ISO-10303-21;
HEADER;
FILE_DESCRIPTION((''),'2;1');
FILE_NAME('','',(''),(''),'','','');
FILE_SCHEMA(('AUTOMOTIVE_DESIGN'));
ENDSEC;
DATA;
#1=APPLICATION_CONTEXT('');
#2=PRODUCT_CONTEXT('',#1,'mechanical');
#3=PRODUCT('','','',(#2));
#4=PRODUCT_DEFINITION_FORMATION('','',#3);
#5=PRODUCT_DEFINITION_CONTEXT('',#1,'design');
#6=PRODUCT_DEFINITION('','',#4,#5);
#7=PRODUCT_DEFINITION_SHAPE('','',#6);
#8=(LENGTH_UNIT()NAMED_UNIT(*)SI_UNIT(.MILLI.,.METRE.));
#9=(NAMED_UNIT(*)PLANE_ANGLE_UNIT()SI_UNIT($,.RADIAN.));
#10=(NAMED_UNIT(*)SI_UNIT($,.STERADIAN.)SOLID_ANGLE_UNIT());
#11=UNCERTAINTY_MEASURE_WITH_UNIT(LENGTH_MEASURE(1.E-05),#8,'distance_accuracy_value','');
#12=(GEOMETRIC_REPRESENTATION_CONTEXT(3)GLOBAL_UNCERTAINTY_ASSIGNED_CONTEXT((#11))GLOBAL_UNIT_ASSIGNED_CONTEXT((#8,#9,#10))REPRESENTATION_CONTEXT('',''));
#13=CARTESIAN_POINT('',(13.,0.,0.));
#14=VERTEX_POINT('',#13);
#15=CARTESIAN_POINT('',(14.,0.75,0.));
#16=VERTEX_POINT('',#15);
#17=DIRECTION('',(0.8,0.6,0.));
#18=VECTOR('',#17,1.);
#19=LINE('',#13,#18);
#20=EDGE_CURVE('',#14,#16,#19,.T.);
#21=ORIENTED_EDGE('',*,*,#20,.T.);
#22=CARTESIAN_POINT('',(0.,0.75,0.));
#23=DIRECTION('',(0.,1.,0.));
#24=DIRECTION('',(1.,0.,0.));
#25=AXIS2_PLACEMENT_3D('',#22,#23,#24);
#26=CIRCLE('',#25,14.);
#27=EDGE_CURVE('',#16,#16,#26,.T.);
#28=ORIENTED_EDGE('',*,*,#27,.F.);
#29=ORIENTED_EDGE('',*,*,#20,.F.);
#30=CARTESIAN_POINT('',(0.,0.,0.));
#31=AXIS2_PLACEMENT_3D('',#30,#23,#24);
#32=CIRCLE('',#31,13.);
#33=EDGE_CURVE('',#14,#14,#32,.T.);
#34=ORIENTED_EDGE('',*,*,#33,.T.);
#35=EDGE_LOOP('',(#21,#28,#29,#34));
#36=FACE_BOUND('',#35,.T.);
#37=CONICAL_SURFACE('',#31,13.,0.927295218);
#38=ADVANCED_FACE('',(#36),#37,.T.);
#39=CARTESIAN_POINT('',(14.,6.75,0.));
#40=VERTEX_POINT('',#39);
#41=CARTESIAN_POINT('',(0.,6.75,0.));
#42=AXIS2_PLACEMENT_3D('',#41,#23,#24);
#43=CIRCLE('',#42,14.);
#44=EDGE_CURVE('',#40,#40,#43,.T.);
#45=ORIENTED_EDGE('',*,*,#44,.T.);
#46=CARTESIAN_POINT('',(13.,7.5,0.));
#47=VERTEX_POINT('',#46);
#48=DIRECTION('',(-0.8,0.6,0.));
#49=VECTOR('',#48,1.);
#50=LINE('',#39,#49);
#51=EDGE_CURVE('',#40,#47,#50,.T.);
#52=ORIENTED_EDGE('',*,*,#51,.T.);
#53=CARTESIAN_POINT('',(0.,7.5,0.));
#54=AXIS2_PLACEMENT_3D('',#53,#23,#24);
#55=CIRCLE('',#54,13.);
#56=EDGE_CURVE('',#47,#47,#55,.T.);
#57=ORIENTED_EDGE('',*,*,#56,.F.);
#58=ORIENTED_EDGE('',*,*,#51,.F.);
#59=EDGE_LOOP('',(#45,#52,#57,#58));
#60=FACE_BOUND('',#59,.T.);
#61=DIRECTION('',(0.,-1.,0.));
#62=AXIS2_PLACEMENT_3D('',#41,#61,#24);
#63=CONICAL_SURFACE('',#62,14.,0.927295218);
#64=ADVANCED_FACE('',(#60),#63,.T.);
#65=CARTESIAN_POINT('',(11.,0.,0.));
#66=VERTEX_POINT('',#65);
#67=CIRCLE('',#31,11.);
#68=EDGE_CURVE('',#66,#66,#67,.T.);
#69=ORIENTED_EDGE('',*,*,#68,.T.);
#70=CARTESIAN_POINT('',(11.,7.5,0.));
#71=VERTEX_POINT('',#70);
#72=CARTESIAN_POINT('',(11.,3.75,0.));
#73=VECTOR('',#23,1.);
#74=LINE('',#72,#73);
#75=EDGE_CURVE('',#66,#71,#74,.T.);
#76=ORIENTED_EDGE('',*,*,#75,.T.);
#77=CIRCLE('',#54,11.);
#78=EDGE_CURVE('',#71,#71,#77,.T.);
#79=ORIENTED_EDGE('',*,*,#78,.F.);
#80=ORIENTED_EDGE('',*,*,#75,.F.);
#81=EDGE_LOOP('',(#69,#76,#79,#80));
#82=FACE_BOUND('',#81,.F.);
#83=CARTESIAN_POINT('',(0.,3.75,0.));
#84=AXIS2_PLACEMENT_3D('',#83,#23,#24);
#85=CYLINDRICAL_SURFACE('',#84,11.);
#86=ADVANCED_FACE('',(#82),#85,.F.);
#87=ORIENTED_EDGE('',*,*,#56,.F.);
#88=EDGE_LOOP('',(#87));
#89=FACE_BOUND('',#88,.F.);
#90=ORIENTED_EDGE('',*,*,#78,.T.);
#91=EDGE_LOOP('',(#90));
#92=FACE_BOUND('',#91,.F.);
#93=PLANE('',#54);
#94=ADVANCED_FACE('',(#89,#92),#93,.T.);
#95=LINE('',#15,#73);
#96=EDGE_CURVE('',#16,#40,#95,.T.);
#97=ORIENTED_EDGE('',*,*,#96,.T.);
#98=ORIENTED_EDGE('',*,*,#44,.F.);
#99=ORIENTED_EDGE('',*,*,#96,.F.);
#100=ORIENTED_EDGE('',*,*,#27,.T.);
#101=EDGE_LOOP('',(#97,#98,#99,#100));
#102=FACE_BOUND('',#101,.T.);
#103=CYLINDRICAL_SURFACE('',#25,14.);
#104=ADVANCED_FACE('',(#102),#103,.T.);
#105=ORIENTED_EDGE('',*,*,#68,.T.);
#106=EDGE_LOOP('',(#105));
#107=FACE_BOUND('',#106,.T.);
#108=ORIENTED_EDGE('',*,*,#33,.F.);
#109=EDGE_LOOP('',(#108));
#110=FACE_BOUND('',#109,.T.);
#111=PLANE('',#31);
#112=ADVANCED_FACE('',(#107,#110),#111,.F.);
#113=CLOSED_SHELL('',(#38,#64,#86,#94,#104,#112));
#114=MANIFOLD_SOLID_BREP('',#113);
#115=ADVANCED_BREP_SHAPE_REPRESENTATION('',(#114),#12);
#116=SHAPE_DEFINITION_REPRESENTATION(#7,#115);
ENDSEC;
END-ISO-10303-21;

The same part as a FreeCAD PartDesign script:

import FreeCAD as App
import Part
import Sketcher

V = App.Vector

doc = App.newDocument("Part")
body = doc.addObject("PartDesign::Body", "Body")

sketch1 = doc.addObject("Sketcher::SketchObject", "Sketch")
body.addObject(sketch1)
sketch1.AttachmentSupport = (doc.XY_Plane, [""])
sketch1.MapMode = "FlatFace"
sketch1.addGeometry(Part.LineSegment(V(13, 0, 0), V(14, 0.8, 0)), False)
sketch1.addGeometry(Part.LineSegment(V(14, 0.8, 0), V(14, 6.8, 0)), False)
sketch1.addGeometry(Part.LineSegment(V(14, 6.8, 0), V(13, 7.5, 0)), False)
sketch1.addGeometry(Part.LineSegment(V(13, 7.5, 0), V(11, 7.5, 0)), False)
sketch1.addGeometry(Part.LineSegment(V(11, 7.5, 0), V(11, 0, 0)), False)
sketch1.addGeometry(Part.LineSegment(V(11, 0, 0), V(13, 0, 0)), False)
sketch1.addConstraint(Sketcher.Constraint("Coincident", 0, 2, 1, 1))
sketch1.addConstraint(Sketcher.Constraint("Coincident", 1, 2, 2, 1))
sketch1.addConstraint(Sketcher.Constraint("Coincident", 2, 2, 3, 1))
sketch1.addConstraint(Sketcher.Constraint("Coincident", 3, 2, 4, 1))
sketch1.addConstraint(Sketcher.Constraint("Coincident", 4, 2, 5, 1))
sketch1.addConstraint(Sketcher.Constraint("Coincident", 5, 2, 0, 1))
sketch1.addConstraint(Sketcher.Constraint("Vertical", 1))
sketch1.addConstraint(Sketcher.Constraint("Horizontal", 3))
sketch1.addConstraint(Sketcher.Constraint("Vertical", 4))
sketch1.addConstraint(Sketcher.Constraint("Horizontal", 5))
sketch1.addConstraint(Sketcher.Constraint("PointOnObject", 4, 2, -1))
sketch1.addConstraint(Sketcher.Constraint("Vertical", 2, 2, 5, 2))
sketch1.addConstraint(Sketcher.Constraint("Equal", 0, 2))
sketch1.addConstraint(Sketcher.Constraint("DistanceX", 3, 2, 3, 1, 2.0))
sketch1.addConstraint(Sketcher.Constraint("DistanceY", 1, 1, 1, 2, 6.0))
sketch1.addConstraint(Sketcher.Constraint("DistanceY", 4, 2, 4, 1, 7.5))
sketch1.addConstraint(Sketcher.Constraint("DistanceX", -1, 1, 0, 2, 14.0))
sketch1.addConstraint(Sketcher.Constraint("DistanceX", -1, 1, 2, 2, 13.0))
revolution = doc.addObject("PartDesign::Revolution", "Revolution")
body.addObject(revolution)
revolution.Profile = sketch1
revolution.ReferenceAxis = (sketch1, ["V_Axis"])
revolution.Angle = 360

doc.recompute()
